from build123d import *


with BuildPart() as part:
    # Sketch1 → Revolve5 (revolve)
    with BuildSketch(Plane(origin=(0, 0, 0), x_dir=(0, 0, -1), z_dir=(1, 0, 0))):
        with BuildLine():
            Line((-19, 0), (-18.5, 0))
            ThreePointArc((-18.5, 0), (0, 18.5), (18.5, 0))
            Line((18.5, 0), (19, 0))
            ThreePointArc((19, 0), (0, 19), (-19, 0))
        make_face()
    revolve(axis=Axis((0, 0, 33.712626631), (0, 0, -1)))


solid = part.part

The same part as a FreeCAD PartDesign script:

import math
import FreeCAD as App
import Part
import Sketcher

V = App.Vector
Q = App.Units.Quantity

doc = App.newDocument("Part")
body = doc.addObject("PartDesign::Body", "Body")

# Sketch on YZ plane
sketch1 = body.newObject("Sketcher::SketchObject", "Sketch")
sketch1.AttachmentSupport = (doc.getObject("YZ_Plane"), [""])
sketch1.MapMode = "FlatFace"
sketch1.addGeometry(Part.LineSegment(V(0, 19, 0), V(0, 18.5, 0)), False)
sketch1.addGeometry(Part.ArcOfCircle(Part.Circle(V(0, 0, 0), V(0, 0, 1), 18.5), math.radians(-90), math.radians(90)), False)
sketch1.addGeometry(Part.LineSegment(V(0, -18.5, 0), V(0, -19, 0)), False)
sketch1.addGeometry(Part.ArcOfCircle(Part.Circle(V(0, 0, 0), V(0, 0, 1), 19), math.radians(-90), math.radians(90)), False)
sketch1.addConstraint(Sketcher.Constraint("Coincident", 0, 2, 1, 2))
sketch1.addConstraint(Sketcher.Constraint("Coincident", 1, 1, 2, 1))
sketch1.addConstraint(Sketcher.Constraint("Coincident", 2, 2, 3, 1))
sketch1.addConstraint(Sketcher.Constraint("Coincident", 3, 2, 0, 1))
sketch1.addConstraint(Sketcher.Constraint("Vertical", 0))
sketch1.addConstraint(Sketcher.Constraint("Vertical", 2))
sketch1.addConstraint(Sketcher.Constraint("Coincident", 1, 3, -1, 1))
sketch1.addConstraint(Sketcher.Constraint("Coincident", 3, 3, -1, 1))
sketch1.addConstraint(Sketcher.Constraint("PointOnObject", 0, 2, -2))
sketch1.addConstraint(Sketcher.Constraint("PointOnObject", 1, 1, -2))
sketch1.addConstraint(Sketcher.Constraint("Radius", 3, Q("19 mm")))
sketch1.addConstraint(Sketcher.Constraint("Radius", 1, Q("18.5 mm")))
revolution = body.newObject("PartDesign::Revolution", "Revolution")
revolution.Profile = sketch1
revolution.ReferenceAxis = (sketch1, ["V_Axis"])
revolution.Angle = 360

doc.recompute()
